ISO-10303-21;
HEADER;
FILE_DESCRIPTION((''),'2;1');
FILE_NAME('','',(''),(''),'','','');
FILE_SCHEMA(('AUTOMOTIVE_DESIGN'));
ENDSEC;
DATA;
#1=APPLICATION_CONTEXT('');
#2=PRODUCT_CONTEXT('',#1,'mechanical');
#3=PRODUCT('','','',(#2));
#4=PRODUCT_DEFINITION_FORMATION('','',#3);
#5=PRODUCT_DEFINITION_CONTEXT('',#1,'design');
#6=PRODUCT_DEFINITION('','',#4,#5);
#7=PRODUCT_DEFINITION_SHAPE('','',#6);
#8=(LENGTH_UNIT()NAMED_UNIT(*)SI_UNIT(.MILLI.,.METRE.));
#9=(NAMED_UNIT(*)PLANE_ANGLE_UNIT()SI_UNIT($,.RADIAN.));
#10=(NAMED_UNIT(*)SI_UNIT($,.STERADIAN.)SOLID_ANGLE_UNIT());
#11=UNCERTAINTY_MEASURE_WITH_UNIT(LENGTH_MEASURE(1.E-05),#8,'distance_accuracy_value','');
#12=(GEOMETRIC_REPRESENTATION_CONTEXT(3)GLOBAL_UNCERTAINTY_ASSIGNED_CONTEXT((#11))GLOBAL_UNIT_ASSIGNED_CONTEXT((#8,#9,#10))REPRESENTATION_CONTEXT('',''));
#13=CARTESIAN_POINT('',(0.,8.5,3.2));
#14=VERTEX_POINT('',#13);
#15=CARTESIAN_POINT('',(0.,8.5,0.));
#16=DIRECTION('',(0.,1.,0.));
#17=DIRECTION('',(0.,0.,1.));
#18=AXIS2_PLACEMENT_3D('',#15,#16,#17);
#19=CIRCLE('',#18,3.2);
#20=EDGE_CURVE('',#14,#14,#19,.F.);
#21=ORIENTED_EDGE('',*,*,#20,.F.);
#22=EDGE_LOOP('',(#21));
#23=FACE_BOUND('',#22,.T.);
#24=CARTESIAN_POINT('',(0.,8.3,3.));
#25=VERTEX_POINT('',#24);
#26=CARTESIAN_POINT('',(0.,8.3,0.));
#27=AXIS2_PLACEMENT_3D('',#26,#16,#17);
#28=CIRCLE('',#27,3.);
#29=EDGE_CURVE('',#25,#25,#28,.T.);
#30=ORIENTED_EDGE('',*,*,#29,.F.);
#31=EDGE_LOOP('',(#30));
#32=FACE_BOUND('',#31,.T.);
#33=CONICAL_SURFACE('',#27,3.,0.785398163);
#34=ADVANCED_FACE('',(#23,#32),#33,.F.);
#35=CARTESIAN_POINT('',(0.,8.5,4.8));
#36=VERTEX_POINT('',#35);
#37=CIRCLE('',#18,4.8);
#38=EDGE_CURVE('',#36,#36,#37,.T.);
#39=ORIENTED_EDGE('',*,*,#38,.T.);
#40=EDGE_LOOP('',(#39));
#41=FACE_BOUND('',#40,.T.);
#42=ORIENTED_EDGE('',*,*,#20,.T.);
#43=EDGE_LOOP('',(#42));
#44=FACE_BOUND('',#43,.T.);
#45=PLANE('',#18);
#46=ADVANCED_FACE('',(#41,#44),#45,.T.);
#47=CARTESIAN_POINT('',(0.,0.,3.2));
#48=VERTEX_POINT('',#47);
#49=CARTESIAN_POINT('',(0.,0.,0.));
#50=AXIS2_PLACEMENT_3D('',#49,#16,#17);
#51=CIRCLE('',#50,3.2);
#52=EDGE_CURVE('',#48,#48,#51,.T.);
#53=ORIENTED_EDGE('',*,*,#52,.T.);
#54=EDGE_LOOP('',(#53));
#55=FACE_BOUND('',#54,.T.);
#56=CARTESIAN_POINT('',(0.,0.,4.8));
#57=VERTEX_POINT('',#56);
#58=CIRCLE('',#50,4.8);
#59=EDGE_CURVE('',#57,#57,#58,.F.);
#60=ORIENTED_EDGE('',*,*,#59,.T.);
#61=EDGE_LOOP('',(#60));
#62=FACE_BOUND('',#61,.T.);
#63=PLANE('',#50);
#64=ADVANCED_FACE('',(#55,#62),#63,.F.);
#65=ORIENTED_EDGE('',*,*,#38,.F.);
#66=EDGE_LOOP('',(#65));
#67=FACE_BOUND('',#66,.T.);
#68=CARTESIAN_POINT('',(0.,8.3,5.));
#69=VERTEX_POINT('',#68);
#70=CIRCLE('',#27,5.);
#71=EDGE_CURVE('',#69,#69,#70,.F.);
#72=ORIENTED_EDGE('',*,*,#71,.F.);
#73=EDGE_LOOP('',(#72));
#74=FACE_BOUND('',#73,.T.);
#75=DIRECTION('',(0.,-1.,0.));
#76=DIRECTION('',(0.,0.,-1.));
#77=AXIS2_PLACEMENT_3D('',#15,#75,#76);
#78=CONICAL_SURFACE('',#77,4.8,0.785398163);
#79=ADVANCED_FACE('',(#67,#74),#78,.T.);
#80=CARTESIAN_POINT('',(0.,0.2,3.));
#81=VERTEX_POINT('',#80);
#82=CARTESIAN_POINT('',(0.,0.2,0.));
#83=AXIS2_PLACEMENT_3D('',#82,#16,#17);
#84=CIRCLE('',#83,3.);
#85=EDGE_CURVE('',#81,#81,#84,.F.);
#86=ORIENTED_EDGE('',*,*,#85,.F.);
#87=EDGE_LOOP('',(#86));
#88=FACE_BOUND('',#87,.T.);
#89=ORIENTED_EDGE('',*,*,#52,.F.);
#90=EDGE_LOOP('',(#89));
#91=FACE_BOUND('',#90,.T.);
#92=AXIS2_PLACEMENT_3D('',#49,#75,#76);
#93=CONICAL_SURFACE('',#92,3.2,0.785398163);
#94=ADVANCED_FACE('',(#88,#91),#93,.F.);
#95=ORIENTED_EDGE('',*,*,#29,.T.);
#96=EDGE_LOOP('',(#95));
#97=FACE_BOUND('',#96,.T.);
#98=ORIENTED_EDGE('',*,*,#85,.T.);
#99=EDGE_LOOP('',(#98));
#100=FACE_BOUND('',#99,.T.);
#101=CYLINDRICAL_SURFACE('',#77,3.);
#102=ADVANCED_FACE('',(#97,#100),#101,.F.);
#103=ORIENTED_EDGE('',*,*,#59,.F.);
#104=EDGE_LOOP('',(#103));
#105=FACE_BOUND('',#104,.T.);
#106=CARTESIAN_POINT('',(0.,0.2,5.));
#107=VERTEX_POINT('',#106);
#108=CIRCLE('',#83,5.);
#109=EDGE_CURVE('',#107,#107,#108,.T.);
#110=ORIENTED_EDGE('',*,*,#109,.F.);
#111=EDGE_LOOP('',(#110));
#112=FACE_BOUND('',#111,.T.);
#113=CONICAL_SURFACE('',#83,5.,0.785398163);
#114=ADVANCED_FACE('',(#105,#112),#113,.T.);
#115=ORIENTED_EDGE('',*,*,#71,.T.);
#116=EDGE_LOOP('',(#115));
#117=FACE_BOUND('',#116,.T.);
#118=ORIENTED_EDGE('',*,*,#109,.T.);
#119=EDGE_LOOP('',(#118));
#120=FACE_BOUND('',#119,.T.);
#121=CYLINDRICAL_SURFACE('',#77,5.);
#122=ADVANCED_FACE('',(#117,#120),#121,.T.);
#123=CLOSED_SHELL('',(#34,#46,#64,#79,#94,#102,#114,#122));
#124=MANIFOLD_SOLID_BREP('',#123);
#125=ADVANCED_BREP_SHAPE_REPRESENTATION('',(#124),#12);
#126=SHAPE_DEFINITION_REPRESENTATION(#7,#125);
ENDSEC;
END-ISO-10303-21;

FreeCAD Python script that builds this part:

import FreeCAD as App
import Part
import Sketcher
from FreeCAD import Vector


def edges_at(feature, points):
    """Names of the edges that pass closest to the given points."""
    edges = feature.Shape.Edges
    near = lambda p: min(range(len(edges)), key=lambda i: edges[i].distToShape(Part.Vertex(*p))[0])
    return sorted({f"Edge{near(p) + 1}" for p in points})

doc = App.newDocument("Part")
body = doc.addObject("PartDesign::Body", "Body")

# Sketch on XZ plane
sketch1 = doc.addObject("Sketcher::SketchObject", "Sketch")
body.addObject(sketch1)
sketch1.AttachmentSupport = (doc.XZ_Plane, [""])
sketch1.MapMode = "FlatFace"
sketch1.addGeometry(Part.Circle(Vector(0, 0, 0), Vector(0, 0, 1), 5), False)
sketch1.addGeometry(Part.Circle(Vector(0, 0, 0), Vector(0, 0, 1), 3), False)
sketch1.addConstraint(Sketcher.Constraint("Coincident", 0, 3, -1, 1))
sketch1.addConstraint(Sketcher.Constraint("Coincident", 1, 3, -1, 1))
sketch1.addConstraint(Sketcher.Constraint("Diameter", 0, 10.0))
sketch1.addConstraint(Sketcher.Constraint("Diameter", 1, 6.0))
pad1 = doc.addObject("PartDesign::Pad", "Pad")
body.addObject(pad1)
pad1.Profile = sketch1
pad1.Length = 8.5
pad1.Reversed = True
doc.recompute()

chamfer = doc.addObject("PartDesign::Chamfer", "Chamfer")
body.addObject(chamfer)
chamfer.Base = (pad1, edges_at(pad1, [
    (0, 0, -5),
    (0, 8.5, -5),
    (0, 0, -3),
    (0, 8.5, -3),
]))
chamfer.Size = 0.2

doc.recompute()
